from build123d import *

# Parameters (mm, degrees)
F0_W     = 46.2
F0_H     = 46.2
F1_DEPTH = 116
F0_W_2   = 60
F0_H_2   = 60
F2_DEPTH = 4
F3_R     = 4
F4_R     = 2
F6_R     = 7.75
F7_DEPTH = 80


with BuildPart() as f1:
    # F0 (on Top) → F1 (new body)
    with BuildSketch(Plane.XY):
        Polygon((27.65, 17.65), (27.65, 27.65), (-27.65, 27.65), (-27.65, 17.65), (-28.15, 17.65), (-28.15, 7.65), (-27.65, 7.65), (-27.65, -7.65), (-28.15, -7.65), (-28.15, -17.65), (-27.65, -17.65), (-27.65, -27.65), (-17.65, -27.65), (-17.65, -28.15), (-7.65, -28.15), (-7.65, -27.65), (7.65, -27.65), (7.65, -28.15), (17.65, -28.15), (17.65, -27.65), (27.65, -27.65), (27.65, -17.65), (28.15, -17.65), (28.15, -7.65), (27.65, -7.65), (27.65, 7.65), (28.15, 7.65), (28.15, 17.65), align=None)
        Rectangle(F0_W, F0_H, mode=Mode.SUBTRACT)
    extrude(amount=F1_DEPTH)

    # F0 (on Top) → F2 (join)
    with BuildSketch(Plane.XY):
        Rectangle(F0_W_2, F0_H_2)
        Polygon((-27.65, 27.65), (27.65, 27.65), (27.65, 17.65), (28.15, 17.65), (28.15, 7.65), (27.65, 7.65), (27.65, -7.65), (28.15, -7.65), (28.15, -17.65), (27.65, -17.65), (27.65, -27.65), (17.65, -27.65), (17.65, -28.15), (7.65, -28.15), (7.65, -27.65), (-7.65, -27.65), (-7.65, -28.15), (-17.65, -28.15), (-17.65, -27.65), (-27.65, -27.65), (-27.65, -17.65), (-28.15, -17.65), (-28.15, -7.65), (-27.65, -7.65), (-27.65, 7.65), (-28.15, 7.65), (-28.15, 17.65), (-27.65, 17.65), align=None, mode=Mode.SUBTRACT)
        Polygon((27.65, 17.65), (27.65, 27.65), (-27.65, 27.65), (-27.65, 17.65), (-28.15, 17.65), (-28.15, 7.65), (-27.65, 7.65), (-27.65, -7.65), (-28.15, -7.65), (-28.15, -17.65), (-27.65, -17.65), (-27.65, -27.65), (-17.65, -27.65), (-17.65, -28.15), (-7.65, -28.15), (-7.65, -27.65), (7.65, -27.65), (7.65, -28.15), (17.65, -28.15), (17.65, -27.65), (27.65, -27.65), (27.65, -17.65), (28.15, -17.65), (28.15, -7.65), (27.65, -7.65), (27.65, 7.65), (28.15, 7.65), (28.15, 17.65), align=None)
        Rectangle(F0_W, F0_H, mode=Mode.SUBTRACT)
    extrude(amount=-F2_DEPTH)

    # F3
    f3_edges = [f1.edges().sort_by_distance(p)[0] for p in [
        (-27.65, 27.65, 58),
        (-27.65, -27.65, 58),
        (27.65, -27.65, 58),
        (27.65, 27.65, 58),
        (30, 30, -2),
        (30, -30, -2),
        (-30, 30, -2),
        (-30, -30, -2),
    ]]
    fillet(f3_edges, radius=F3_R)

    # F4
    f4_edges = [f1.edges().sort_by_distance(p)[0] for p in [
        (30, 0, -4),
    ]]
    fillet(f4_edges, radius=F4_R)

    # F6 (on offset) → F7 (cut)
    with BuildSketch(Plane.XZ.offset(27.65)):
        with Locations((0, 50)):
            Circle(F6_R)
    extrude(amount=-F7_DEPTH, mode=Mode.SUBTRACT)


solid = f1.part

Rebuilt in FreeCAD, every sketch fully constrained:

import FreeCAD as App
import Part
import Sketcher


def edges_at(feature, points):
    """Names of the edges that pass closest to the given points."""
    edges = feature.Shape.Edges
    near = lambda p: min(range(len(edges)), key=lambda i: edges[i].distToShape(Part.Vertex(*p))[0])
    return sorted({f"Edge{near(p) + 1}" for p in points})


def add_polygon(sketch, points):
    """Adds a closed chain of lines whose ends are joined by coincident constraints."""
    first, n = sketch.GeometryCount, len(points)
    for a, b in zip(points, points[1:] + points[:1]):
        sketch.addGeometry(Part.LineSegment(App.Vector(*a, 0), App.Vector(*b, 0)), False)
    for i in range(n):
        sketch.addConstraint(Sketcher.Constraint("Coincident", first + i, 2, first + (i + 1) % n, 1))

doc = App.newDocument("Part")
body = doc.addObject("PartDesign::Body", "Body")

# Sketch on XY plane
sketch1 = body.newObject("Sketcher::SketchObject", "Sketch")
sketch1.AttachmentSupport = (doc.getObject("XY_Plane"), [""])
sketch1.MapMode = "FlatFace"
add_polygon(sketch1, [(27.6, 17.6), (27.6, 27.6), (-27.6, 27.6), (-27.6, 17.6), (-28.1, 17.6), (-28.1, 7.7), (-27.6, 7.7), (-27.6, -7.7), (-28.1, -7.7), (-28.1, -17.6), (-27.6, -17.6), (-27.6, -27.6), (-17.6, -27.6), (-17.6, -28.1), (-7.7, -28.1), (-7.7, -27.6), (7.7, -27.6), (7.7, -28.1), (17.6, -28.1), (17.6, -27.6), (27.6, -27.6), (27.6, -17.6), (28.1, -17.6), (28.1, -7.7), (27.6, -7.7), (27.6, 7.7), (28.1, 7.7), (28.1, 17.6)])  # lines 0-27
add_polygon(sketch1, [(23.1, -23.1), (-23.1, -23.1), (-23.1, 23.1), (23.1, 23.1)])  # lines 28-31
sketch1.addConstraint([
    Sketcher.Constraint("Vertical", 0),
    Sketcher.Constraint("Horizontal", 1),
    Sketcher.Constraint("Vertical", 2),
    Sketcher.Constraint("Horizontal", 3),
    Sketcher.Constraint("Vertical", 4),
    Sketcher.Constraint("Horizontal", 5),
    Sketcher.Constraint("Vertical", 6),
    Sketcher.Constraint("Horizontal", 7),
    Sketcher.Constraint("Vertical", 8),
    Sketcher.Constraint("Horizontal", 9),
    Sketcher.Constraint("Vertical", 10),
    Sketcher.Constraint("Horizontal", 11),
    Sketcher.Constraint("Vertical", 12),
    Sketcher.Constraint("Horizontal", 13),
    Sketcher.Constraint("Vertical", 14),
    Sketcher.Constraint("Horizontal", 15),
    Sketcher.Constraint("Vertical", 16),
    Sketcher.Constraint("Horizontal", 17),
    Sketcher.Constraint("Vertical", 18),
    Sketcher.Constraint("Horizontal", 19),
    Sketcher.Constraint("Vertical", 20),
    Sketcher.Constraint("Horizontal", 21),
    Sketcher.Constraint("Vertical", 22),
    Sketcher.Constraint("Horizontal", 23),
    Sketcher.Constraint("Vertical", 24),
    Sketcher.Constraint("Horizontal", 25),
    Sketcher.Constraint("Vertical", 26),
    Sketcher.Constraint("Horizontal", 27),
    Sketcher.Constraint("Horizontal", 28),
    Sketcher.Constraint("Vertical", 29),
    Sketcher.Constraint("Horizontal", 30),
    Sketcher.Constraint("Vertical", 31),
    Sketcher.Constraint("Symmetric", 0, 2, 10, 2, -1, 1),
    Sketcher.Constraint("Symmetric", 1, 2, 19, 2, -1, 1),
    Sketcher.Constraint("Symmetric", 3, 2, 21, 2, -1, 1),
    Sketcher.Constraint("Symmetric", 5, 2, 23, 2, -1, 1),
    Sketcher.Constraint("Symmetric", 7, 2, 25, 2, -1, 1),
    Sketcher.Constraint("Symmetric", 28, 2, 30, 2, -1, 1),
    Sketcher.Constraint("Symmetric", 13, 2, 16, 2, -2),
    Sketcher.Constraint("Symmetric", 9, 2, 20, 2, -2),
    Sketcher.Constraint("Symmetric", 7, 2, 22, 2, -2),
    Sketcher.Constraint("Horizontal", 11, 2, 14, 2),
    Sketcher.Constraint("Horizontal", 3, 2, 26, 2),
    Sketcher.Constraint("Vertical", 2, 2, 5, 2),
    Sketcher.Constraint("Equal", 11, 13),
    Sketcher.Constraint("Equal", 13, 17),
    Sketcher.Constraint("Equal", 19, 0),
    Sketcher.Constraint("Equal", 2, 4),
    Sketcher.Constraint("Equal", 15, 6),
    Sketcher.Constraint("Equal", 27, 12),
    Sketcher.Constraint("Equal", 30, 29),
    Sketcher.Constraint("DistanceX", 11, 1, 11, 2, 10.0),
    Sketcher.Constraint("DistanceX", 1, 2, 1, 1, 55.3),
    Sketcher.Constraint("DistanceX", 3, 2, 3, 1, 0.5),
    Sketcher.Constraint("DistanceX", 28, 2, 28, 1, 46.2),
])
pad1 = body.newObject("PartDesign::Pad", "Pad")
pad1.Profile = sketch1
pad1.Length = 116

# Sketch on XY plane
sketch2 = body.newObject("Sketcher::SketchObject", "Sketch001")
sketch2.AttachmentSupport = (doc.getObject("XY_Plane"), [""])
sketch2.MapMode = "FlatFace"
add_polygon(sketch2, [(-30, 30), (-30, -30), (30, -30), (30, 30)])  # lines 0-3
add_polygon(sketch2, [(23, -23), (-23, -23), (-23, 23), (23, 23)])  # lines 4-7
sketch2.addConstraint([
    Sketcher.Constraint("Vertical", 0),
    Sketcher.Constraint("Horizontal", 1),
    Sketcher.Constraint("Vertical", 2),
    Sketcher.Constraint("Horizontal", 3),
    Sketcher.Constraint("Horizontal", 4),
    Sketcher.Constraint("Vertical", 5),
    Sketcher.Constraint("Horizontal", 6),
    Sketcher.Constraint("Vertical", 7),
    Sketcher.Constraint("Symmetric", 0, 2, 2, 2, -1, 1),
    Sketcher.Constraint("Symmetric", 4, 2, 6, 2, -1, 1),
    Sketcher.Constraint("Equal", 3, 0),
    Sketcher.Constraint("Equal", 6, 5),
    Sketcher.Constraint("DistanceX", 1, 1, 1, 2, 60.0),
    Sketcher.Constraint("DistanceX", 4, 2, 4, 1, 46.2),
])
pad2 = body.newObject("PartDesign::Pad", "Pad001")
pad2.Profile = sketch2
pad2.Length = 4
pad2.Reversed = True
doc.recompute()

fillet = body.newObject("PartDesign::Fillet", "Fillet")
fillet.Base = (pad2, edges_at(pad2, [
    (-27.65, 27.65, 58),
    (-27.65, -27.65, 58),
    (27.65, -27.65, 58),
    (27.65, 27.65, 58),
    (30, 30, -2),
    (30, -30, -2),
    (-30, 30, -2),
    (-30, -30, -2),
]))
fillet.Radius = 4
doc.recompute()

fillet2 = body.newObject("PartDesign::Fillet", "Fillet001")
fillet2.Base = (fillet, edges_at(fillet, [(30, 0, -4)]))
fillet2.Radius = 2

# Sketch on XZ plane
sketch3 = body.newObject("Sketcher::SketchObject", "Sketch002")
sketch3.AttachmentSupport = (doc.getObject("XZ_Plane"), [""])
sketch3.MapMode = "FlatFace"
sketch3.AttachmentOffset = App.Placement(App.Vector(0, 0, 27.65), App.Rotation())
sketch3.addGeometry(Part.Circle(App.Vector(0, 50, 0), App.Vector(0, 0, 1), 8), False)
sketch3.addConstraint([
    Sketcher.Constraint("PointOnObject", 0, 3, -2),
    Sketcher.Constraint("Diameter", 0, 15.5),
    Sketcher.Constraint("DistanceY", -1, 1, 0, 3, 50.0),
])
pocket1 = body.newObject("PartDesign::Pocket", "Pocket")
pocket1.Profile = sketch3
pocket1.Length = 80

doc.recompute()
